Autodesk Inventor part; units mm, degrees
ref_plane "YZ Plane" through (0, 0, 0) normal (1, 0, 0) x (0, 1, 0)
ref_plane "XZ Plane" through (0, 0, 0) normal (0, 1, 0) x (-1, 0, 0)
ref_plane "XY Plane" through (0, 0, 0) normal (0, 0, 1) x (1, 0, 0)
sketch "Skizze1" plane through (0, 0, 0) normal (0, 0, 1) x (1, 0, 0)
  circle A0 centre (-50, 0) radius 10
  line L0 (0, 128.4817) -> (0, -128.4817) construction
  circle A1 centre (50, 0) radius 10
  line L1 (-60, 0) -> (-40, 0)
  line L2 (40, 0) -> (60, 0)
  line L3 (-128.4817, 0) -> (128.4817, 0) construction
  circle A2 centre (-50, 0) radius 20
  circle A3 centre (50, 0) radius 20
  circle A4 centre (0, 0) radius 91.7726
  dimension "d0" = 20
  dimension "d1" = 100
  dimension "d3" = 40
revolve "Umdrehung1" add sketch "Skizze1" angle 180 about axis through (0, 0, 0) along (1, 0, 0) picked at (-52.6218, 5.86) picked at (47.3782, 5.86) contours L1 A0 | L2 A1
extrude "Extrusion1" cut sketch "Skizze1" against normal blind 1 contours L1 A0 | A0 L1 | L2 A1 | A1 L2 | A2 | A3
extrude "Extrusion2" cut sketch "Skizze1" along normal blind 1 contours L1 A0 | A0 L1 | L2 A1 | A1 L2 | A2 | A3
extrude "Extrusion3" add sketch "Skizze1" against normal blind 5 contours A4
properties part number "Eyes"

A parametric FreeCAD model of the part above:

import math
import FreeCAD as App
import Part
import Sketcher
from FreeCAD import Vector

doc = App.newDocument("Part")
body = doc.addObject("PartDesign::Body", "Body")
body.AllowCompound = True

# Sketch on XY plane
sketch1 = body.newObject("Sketcher::SketchObject", "Sketch")
sketch1.AttachmentSupport = (doc.getObject("XY_Plane"), [""])
sketch1.MapMode = "FlatFace"
sketch1.addGeometry(Part.LineSegment(Vector(-60, 0, 0), Vector(-40, 0, 0)), False)
sketch1.addGeometry(Part.ArcOfCircle(Part.Circle(Vector(-50, 0, 0), Vector(0, 0, 1), 10), math.radians(0), math.radians(180)), False)
sketch1.addGeometry(Part.LineSegment(Vector(40, 0, 0), Vector(60, 0, 0)), False)
sketch1.addGeometry(Part.ArcOfCircle(Part.Circle(Vector(50, 0, 0), Vector(0, 0, 1), 10), math.radians(0), math.radians(180)), False)
sketch1.addConstraint(Sketcher.Constraint("Coincident", 0, 1, 1, 2))
sketch1.addConstraint(Sketcher.Constraint("Coincident", 1, 1, 0, 2))
sketch1.addConstraint(Sketcher.Constraint("Coincident", 2, 1, 3, 2))
sketch1.addConstraint(Sketcher.Constraint("Coincident", 3, 1, 2, 2))
sketch1.addConstraint(Sketcher.Constraint("Horizontal", 0))
sketch1.addConstraint(Sketcher.Constraint("Horizontal", 2))
sketch1.addConstraint(Sketcher.Constraint("Equal", 1, 3))
sketch1.addConstraint(Sketcher.Constraint("Symmetric", 1, 3, 3, 3, -1, 1))
sketch1.addConstraint(Sketcher.Constraint("PointOnObject", 1, 3, -1))
sketch1.addConstraint(Sketcher.Constraint("PointOnObject", 0, 1, -1))
sketch1.addConstraint(Sketcher.Constraint("PointOnObject", 2, 1, -1))
sketch1.addConstraint(Sketcher.Constraint("Radius", 1, 10.0))
sketch1.addConstraint(Sketcher.Constraint("DistanceX", 1, 1, -1, 1, 40.0))
revolution = body.newObject("PartDesign::Revolution", "Revolution")
revolution.Profile = sketch1
revolution.ReferenceAxis = (sketch1, ["H_Axis"])
revolution.Angle = 180

# Sketch on XY plane
sketch2 = body.newObject("Sketcher::SketchObject", "Sketch001")
sketch2.AttachmentSupport = (doc.getObject("XY_Plane"), [""])
sketch2.MapMode = "FlatFace"
sketch2.addGeometry(Part.Circle(Vector(-50, 0, 0), Vector(0, 0, 1), 20), False)
sketch2.addGeometry(Part.Circle(Vector(50, 0, 0), Vector(0, 0, 1), 20), False)
sketch2.addConstraint(Sketcher.Constraint("Equal", 0, 1))
sketch2.addConstraint(Sketcher.Constraint("Symmetric", 0, 3, 1, 3, -1, 1))
sketch2.addConstraint(Sketcher.Constraint("PointOnObject", 0, 3, -1))
sketch2.addConstraint(Sketcher.Constraint("Diameter", 0, 40.0))
sketch2.addConstraint(Sketcher.Constraint("DistanceX", 0, 3, 1, 3, 100.0))
pocket1 = body.newObject("PartDesign::Pocket", "Pocket")
pocket1.Profile = sketch2
pocket1.Length = 1

# Sketch on XY plane
sketch3 = body.newObject("Sketcher::SketchObject", "Sketch002")
sketch3.AttachmentSupport = (doc.getObject("XY_Plane"), [""])
sketch3.MapMode = "FlatFace"
sketch3.addGeometry(Part.Circle(Vector(-50, 0, 0), Vector(0, 0, 1), 20), False)
sketch3.addGeometry(Part.Circle(Vector(50, 0, 0), Vector(0, 0, 1), 20), False)
sketch3.addConstraint(Sketcher.Constraint("Equal", 0, 1))
sketch3.addConstraint(Sketcher.Constraint("Symmetric", 0, 3, 1, 3, -1, 1))
sketch3.addConstraint(Sketcher.Constraint("PointOnObject", 0, 3, -1))
sketch3.addConstraint(Sketcher.Constraint("Diameter", 0, 40.0))
sketch3.addConstraint(Sketcher.Constraint("DistanceX", 0, 3, 1, 3, 100.0))
pocket2 = body.newObject("PartDesign::Pocket", "Pocket001")
pocket2.Profile = sketch3
pocket2.Length = 1
pocket2.Reversed = True

# Sketch on XY plane
sketch4 = body.newObject("Sketcher::SketchObject", "Sketch003")
sketch4.AttachmentSupport = (doc.getObject("XY_Plane"), [""])
sketch4.MapMode = "FlatFace"
sketch4.addGeometry(Part.Circle(Vector(0, 0, 0), Vector(0, 0, 1), 92), False)
sketch4.addGeometry(Part.Circle(Vector(-50, 0, 0), Vector(0, 0, 1), 20), False)
sketch4.addGeometry(Part.Circle(Vector(50, 0, 0), Vector(0, 0, 1), 20), False)
sketch4.addConstraint(Sketcher.Constraint("Coincident", 0, 3, -1, 1))
sketch4.addConstraint(Sketcher.Constraint("Equal", 1, 2))
sketch4.addConstraint(Sketcher.Constraint("Symmetric", 1, 3, 2, 3, -1, 1))
sketch4.addConstraint(Sketcher.Constraint("PointOnObject", 1, 3, -1))
sketch4.addConstraint(Sketcher.Constraint("Diameter", 1, 40.0))
sketch4.addConstraint(Sketcher.Constraint("DistanceX", 1, 3, 2, 3, 100.0))
sketch4.addConstraint(Sketcher.Constraint("Diameter", 0, 183.5452))
pad1 = body.newObject("PartDesign::Pad", "Pad")
pad1.Profile = sketch4
pad1.Length = 5
pad1.Reversed = True

doc.recompute()
